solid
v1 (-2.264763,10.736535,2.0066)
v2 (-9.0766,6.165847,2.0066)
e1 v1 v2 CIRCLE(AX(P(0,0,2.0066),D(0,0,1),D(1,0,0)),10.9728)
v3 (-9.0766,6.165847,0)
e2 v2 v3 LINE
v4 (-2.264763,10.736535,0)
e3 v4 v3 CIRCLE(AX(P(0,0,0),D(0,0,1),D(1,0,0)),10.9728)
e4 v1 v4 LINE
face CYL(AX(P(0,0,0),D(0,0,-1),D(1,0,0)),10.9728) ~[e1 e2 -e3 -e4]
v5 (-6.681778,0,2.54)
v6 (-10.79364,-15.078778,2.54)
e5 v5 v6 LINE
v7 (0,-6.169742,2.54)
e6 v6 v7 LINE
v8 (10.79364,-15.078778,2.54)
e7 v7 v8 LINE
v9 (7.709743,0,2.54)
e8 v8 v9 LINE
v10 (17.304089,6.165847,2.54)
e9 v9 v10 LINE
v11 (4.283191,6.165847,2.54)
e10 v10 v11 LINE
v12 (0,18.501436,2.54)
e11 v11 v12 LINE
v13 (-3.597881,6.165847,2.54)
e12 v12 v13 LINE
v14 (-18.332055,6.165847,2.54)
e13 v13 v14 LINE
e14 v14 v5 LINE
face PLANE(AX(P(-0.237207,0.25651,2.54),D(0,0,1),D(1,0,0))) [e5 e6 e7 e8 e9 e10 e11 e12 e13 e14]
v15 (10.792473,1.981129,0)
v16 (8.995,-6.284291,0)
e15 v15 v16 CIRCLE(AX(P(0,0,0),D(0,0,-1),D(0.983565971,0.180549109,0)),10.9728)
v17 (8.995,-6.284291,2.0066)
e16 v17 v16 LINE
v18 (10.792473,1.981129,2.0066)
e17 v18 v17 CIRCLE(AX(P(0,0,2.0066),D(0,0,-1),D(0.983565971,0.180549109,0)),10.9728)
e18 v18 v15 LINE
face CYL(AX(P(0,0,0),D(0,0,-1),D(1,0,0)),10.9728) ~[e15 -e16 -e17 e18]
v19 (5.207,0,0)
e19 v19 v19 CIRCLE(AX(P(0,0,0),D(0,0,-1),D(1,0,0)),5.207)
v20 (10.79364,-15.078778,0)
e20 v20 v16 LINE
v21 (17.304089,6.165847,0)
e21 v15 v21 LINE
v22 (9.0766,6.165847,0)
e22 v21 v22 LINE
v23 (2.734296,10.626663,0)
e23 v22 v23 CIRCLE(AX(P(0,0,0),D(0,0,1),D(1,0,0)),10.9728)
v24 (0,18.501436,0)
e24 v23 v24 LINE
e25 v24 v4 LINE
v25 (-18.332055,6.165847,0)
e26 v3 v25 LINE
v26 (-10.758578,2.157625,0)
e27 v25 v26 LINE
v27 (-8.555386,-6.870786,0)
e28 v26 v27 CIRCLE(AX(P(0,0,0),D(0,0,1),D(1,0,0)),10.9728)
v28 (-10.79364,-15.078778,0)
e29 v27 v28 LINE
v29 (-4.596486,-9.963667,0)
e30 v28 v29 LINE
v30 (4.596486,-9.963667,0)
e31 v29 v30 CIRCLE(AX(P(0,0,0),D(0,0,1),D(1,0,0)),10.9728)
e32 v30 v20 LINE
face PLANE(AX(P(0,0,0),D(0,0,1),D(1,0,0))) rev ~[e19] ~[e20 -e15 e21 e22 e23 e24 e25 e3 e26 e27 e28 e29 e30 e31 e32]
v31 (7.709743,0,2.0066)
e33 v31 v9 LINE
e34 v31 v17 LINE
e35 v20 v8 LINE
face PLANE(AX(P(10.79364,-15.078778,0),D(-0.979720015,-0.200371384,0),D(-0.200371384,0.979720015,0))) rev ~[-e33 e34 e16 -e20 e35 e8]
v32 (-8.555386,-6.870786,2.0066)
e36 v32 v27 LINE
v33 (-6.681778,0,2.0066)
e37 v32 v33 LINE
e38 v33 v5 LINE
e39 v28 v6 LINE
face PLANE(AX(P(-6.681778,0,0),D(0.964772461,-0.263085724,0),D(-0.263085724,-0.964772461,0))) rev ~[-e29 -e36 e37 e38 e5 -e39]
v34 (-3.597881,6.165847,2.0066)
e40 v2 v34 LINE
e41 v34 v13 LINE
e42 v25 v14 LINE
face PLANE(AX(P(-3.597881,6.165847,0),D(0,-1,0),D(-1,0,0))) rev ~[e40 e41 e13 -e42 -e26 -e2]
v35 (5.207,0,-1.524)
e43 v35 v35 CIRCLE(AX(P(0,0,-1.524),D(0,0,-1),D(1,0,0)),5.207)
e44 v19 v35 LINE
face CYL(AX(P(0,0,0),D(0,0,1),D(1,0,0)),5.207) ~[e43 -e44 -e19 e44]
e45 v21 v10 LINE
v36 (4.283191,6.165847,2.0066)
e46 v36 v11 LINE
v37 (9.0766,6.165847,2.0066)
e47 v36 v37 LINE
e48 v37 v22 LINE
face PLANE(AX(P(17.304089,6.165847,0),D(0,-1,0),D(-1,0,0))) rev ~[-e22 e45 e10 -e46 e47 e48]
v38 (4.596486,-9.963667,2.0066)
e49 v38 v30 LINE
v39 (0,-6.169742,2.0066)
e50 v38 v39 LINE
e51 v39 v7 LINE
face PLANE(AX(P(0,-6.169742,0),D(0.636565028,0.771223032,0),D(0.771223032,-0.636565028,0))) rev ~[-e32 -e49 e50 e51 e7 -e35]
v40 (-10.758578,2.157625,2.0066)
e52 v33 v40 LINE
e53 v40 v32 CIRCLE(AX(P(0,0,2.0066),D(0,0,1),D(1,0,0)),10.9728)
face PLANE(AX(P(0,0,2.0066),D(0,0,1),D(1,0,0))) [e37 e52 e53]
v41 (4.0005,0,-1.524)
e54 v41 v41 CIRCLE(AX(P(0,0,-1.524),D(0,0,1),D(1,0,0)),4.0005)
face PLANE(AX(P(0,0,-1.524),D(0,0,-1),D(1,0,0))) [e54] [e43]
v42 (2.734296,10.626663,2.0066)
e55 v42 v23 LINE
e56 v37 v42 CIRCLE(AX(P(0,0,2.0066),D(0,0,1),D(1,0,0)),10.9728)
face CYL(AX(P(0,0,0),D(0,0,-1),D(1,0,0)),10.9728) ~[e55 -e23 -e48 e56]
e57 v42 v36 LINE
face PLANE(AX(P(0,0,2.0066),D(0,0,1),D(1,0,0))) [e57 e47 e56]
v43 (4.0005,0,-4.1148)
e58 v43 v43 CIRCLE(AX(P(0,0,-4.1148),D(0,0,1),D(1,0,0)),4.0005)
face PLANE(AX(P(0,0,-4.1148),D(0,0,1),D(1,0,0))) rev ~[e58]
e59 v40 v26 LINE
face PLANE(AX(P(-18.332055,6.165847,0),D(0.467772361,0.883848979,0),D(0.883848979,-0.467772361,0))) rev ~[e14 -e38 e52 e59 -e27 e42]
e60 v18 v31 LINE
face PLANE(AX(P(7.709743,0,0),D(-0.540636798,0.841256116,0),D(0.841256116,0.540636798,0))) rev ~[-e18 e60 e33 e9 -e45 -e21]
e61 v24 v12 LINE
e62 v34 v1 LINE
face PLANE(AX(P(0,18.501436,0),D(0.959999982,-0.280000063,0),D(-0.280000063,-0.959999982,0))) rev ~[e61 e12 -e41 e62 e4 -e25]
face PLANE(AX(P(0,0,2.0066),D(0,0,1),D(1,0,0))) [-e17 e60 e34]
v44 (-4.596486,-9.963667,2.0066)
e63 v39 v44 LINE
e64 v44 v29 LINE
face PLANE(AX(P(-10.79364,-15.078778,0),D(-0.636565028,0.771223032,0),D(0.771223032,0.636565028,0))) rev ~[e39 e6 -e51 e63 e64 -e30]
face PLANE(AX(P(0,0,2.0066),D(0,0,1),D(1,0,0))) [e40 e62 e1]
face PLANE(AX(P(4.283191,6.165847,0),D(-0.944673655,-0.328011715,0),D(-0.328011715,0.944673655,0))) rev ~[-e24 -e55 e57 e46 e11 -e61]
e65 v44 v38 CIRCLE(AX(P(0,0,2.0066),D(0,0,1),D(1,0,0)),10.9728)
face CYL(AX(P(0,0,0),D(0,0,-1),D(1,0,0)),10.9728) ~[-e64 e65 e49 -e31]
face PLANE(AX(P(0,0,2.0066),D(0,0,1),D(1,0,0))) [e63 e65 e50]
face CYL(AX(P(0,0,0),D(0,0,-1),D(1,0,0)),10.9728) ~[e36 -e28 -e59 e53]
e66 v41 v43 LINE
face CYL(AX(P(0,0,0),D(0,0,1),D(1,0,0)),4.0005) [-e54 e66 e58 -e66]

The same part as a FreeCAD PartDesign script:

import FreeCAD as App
import Part
import Sketcher
Q = App.Units.Quantity


def add_polygon(sketch, points):
    """Adds a closed chain of lines whose ends are joined by coincident constraints."""
    first, n = sketch.GeometryCount, len(points)
    for a, b in zip(points, points[1:] + points[:1]):
        sketch.addGeometry(Part.LineSegment(App.Vector(*a, 0), App.Vector(*b, 0)), False)
    for i in range(n):
        sketch.addConstraint(Sketcher.Constraint("Coincident", first + i, 2, first + (i + 1) % n, 1))

doc = App.newDocument("Part")
body = doc.addObject("PartDesign::Body", "Body")

# Sketch on XY plane
sketch1 = body.newObject("Sketcher::SketchObject", "Sketch")
sketch1.AttachmentSupport = (doc.getObject("XY_Plane"), [""])
sketch1.MapMode = "FlatFace"
sketch1.addGeometry(Part.Circle(App.Vector(0, 0, 0), App.Vector(0, 0, 1), 11), False)
sketch1.addConstraint([
    Sketcher.Constraint("Coincident", 0, 3, -1, 1),
    Sketcher.Constraint("Diameter", 0, Q("0.864 in")),
])
pad1 = body.newObject("PartDesign::Pad", "Pad")
pad1.Profile = sketch1
pad1.Length = Q("0.079 in")

# Sketch on XY plane
sketch2 = body.newObject("Sketcher::SketchObject", "Sketch001")
sketch2.AttachmentSupport = (doc.getObject("XY_Plane"), [""])
sketch2.MapMode = "FlatFace"
sketch2.addGeometry(Part.Circle(App.Vector(0, 0, 0), App.Vector(0, 0, 1), 5), False)
sketch2.addConstraint([
    Sketcher.Constraint("Coincident", 0, 3, -1, 1),
    Sketcher.Constraint("Diameter", 0, Q("0.41 in")),
])
pad2 = body.newObject("PartDesign::Pad", "Pad001")
pad2.Profile = sketch2
pad2.Length = Q("0.06 in")
pad2.Reversed = True

# Sketch on XY plane
sketch3 = body.newObject("Sketcher::SketchObject", "Sketch002")
sketch3.AttachmentSupport = (doc.getObject("XY_Plane"), [""])
sketch3.MapMode = "FlatFace"
sketch3.addGeometry(Part.Circle(App.Vector(0, 0, 0), App.Vector(0, 0, 1), 4), False)
sketch3.addConstraint([
    Sketcher.Constraint("Coincident", 0, 3, -1, 1),
    Sketcher.Constraint("Diameter", 0, Q("0.315 in")),
])
pad3 = body.newObject("PartDesign::Pad", "Pad002")
pad3.Profile = sketch3
pad3.Length = Q("0.162 in")
pad3.Reversed = True

# Sketch on XY plane
sketch4 = body.newObject("Sketcher::SketchObject", "Sketch003")
sketch4.AttachmentSupport = (doc.getObject("XY_Plane"), [""])
sketch4.MapMode = "FlatFace"
add_polygon(sketch4, [(4, 6), (0, 19), (-4, 6), (-18, 6), (-7, 0), (-11, -15), (0, -6), (11, -15), (8, 0), (17, 6)])  # lines 0-9
sketch4.addConstraint([
    Sketcher.Constraint("Horizontal", 2),
    Sketcher.Constraint("Horizontal", 9),
    Sketcher.Constraint("Symmetric", 4, 2, 6, 2, -2),
    Sketcher.Constraint("PointOnObject", 0, 2, -2),
    Sketcher.Constraint("PointOnObject", 3, 2, -1),
    Sketcher.Constraint("PointOnObject", 5, 2, -2),
    Sketcher.Constraint("PointOnObject", 7, 2, -1),
    Sketcher.Constraint("Horizontal", 2, 2, 8, 2),
    Sketcher.Constraint("DistanceX", 9, 2, 9, 1, Q("13.020898 mm")),
    Sketcher.Constraint("Distance", 3, Q("13.181298 mm")),
    Sketcher.Constraint("Distance", 4, Q("15.629362 mm")),
    Sketcher.Constraint("DistanceX", 2, 2, 2, 1, Q("14.734174 mm")),
    Sketcher.Constraint("DistanceX", 1, 2, -1, 1, Q("3.597881 mm")),
    Sketcher.Constraint("DistanceX", 3, 2, -1, 1, Q("6.681778 mm")),
    Sketcher.Constraint("DistanceX", 4, 2, -1, 1, Q("10.79364 mm")),
    Sketcher.Constraint("DistanceX", -1, 1, 8, 2, Q("17.304089 mm")),
    Sketcher.Constraint("DistanceY", 1, 2, 0, 2, Q("12.335589 mm")),
    Sketcher.Constraint("DistanceY", 5, 2, 1, 2, Q("12.335589 mm")),
    Sketcher.Constraint("DistanceX", 3, 2, 7, 2, Q("14.391521 mm")),
])
pad4 = body.newObject("PartDesign::Pad", "Pad003")
pad4.Profile = sketch4
pad4.Length = Q("0.1 in")

doc.recompute()
